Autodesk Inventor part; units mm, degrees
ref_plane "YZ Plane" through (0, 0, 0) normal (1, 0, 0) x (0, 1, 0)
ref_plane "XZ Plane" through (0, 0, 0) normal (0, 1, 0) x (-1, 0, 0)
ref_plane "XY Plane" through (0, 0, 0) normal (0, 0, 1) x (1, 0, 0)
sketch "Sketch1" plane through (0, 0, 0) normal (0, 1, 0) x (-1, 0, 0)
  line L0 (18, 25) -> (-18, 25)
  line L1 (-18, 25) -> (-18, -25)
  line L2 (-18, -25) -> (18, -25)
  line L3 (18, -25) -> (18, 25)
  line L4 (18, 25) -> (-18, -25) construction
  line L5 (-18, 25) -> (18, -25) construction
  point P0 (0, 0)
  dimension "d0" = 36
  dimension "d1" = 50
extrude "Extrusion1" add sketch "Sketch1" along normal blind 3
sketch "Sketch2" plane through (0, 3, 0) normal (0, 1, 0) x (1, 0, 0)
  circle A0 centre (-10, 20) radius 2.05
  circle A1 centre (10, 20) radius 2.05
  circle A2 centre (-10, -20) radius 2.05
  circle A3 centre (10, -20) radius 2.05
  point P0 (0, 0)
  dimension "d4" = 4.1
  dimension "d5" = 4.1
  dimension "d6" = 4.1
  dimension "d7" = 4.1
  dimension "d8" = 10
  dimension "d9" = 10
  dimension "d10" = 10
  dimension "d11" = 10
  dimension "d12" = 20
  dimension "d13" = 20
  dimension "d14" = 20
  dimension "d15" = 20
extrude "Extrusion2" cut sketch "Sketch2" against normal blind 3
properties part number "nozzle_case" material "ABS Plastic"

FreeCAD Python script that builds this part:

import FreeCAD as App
import Part
import Sketcher


def add_polygon(sketch, points):
    """Adds a closed chain of lines whose ends are joined by coincident constraints."""
    first, n = sketch.GeometryCount, len(points)
    for a, b in zip(points, points[1:] + points[:1]):
        sketch.addGeometry(Part.LineSegment(App.Vector(*a, 0), App.Vector(*b, 0)), False)
    for i in range(n):
        sketch.addConstraint(Sketcher.Constraint("Coincident", first + i, 2, first + (i + 1) % n, 1))

doc = App.newDocument("Part")
body = doc.addObject("PartDesign::Body", "Body")

sketch1 = body.newObject("Sketcher::SketchObject", "Sketch")
sketch1.AttachmentSupport = (doc.getObject("XZ_Plane"), [""])
sketch1.MapMode = "FlatFace"
add_polygon(sketch1, [(-18, -25), (-18, 25), (18, 25), (18, -25)])
sketch1.addConstraint([
    Sketcher.Constraint("Vertical", 0),
    Sketcher.Constraint("Horizontal", 1),
    Sketcher.Constraint("Vertical", 2),
    Sketcher.Constraint("Horizontal", 3),
    Sketcher.Constraint("Symmetric", 0, 2, 2, 2, -1, 1),
    Sketcher.Constraint("DistanceX", 1, 1, 1, 2, 36.0),
    Sketcher.Constraint("DistanceY", 0, 1, 0, 2, 50.0),
])
pad1 = body.newObject("PartDesign::Pad", "Pad")
pad1.Profile = sketch1
pad1.Length = 3
pad1.Reversed = True

sketch2 = body.newObject("Sketcher::SketchObject", "Sketch001")
sketch2.AttachmentSupport = (doc.getObject("XZ_Plane"), [""])
sketch2.MapMode = "FlatFace"
sketch2.AttachmentOffset = App.Placement(App.Vector(0, 0, -3), App.Rotation())
sketch2.addGeometry([
    Part.Circle(App.Vector(-10, -20, 0), App.Vector(0, 0, 1), 2.05),
    Part.Circle(App.Vector(10, -20, 0), App.Vector(0, 0, 1), 2.05),
    Part.Circle(App.Vector(-10, 20, 0), App.Vector(0, 0, 1), 2.05),
    Part.Circle(App.Vector(10, 20, 0), App.Vector(0, 0, 1), 2.05),
], False)
sketch2.addConstraint([
    Sketcher.Constraint("Equal", 0, 1),
    Sketcher.Constraint("Equal", 1, 2),
    Sketcher.Constraint("Equal", 2, 3),
    Sketcher.Constraint("Symmetric", 1, 3, 2, 3, -1, 1),
    Sketcher.Constraint("Symmetric", 0, 3, 3, 3, -1, 1),
    Sketcher.Constraint("Symmetric", 0, 3, 1, 3, -2),
    Sketcher.Constraint("Diameter", 0, 4.1),
    Sketcher.Constraint("DistanceX", 0, 3, -1, 1, 10.0),
    Sketcher.Constraint("DistanceY", 0, 3, -1, 1, 20.0),
])
pocket1 = body.newObject("PartDesign::Pocket", "Pocket")
pocket1.Profile = sketch2
pocket1.Length = 3
pocket1.Reversed = True

doc.recompute()
